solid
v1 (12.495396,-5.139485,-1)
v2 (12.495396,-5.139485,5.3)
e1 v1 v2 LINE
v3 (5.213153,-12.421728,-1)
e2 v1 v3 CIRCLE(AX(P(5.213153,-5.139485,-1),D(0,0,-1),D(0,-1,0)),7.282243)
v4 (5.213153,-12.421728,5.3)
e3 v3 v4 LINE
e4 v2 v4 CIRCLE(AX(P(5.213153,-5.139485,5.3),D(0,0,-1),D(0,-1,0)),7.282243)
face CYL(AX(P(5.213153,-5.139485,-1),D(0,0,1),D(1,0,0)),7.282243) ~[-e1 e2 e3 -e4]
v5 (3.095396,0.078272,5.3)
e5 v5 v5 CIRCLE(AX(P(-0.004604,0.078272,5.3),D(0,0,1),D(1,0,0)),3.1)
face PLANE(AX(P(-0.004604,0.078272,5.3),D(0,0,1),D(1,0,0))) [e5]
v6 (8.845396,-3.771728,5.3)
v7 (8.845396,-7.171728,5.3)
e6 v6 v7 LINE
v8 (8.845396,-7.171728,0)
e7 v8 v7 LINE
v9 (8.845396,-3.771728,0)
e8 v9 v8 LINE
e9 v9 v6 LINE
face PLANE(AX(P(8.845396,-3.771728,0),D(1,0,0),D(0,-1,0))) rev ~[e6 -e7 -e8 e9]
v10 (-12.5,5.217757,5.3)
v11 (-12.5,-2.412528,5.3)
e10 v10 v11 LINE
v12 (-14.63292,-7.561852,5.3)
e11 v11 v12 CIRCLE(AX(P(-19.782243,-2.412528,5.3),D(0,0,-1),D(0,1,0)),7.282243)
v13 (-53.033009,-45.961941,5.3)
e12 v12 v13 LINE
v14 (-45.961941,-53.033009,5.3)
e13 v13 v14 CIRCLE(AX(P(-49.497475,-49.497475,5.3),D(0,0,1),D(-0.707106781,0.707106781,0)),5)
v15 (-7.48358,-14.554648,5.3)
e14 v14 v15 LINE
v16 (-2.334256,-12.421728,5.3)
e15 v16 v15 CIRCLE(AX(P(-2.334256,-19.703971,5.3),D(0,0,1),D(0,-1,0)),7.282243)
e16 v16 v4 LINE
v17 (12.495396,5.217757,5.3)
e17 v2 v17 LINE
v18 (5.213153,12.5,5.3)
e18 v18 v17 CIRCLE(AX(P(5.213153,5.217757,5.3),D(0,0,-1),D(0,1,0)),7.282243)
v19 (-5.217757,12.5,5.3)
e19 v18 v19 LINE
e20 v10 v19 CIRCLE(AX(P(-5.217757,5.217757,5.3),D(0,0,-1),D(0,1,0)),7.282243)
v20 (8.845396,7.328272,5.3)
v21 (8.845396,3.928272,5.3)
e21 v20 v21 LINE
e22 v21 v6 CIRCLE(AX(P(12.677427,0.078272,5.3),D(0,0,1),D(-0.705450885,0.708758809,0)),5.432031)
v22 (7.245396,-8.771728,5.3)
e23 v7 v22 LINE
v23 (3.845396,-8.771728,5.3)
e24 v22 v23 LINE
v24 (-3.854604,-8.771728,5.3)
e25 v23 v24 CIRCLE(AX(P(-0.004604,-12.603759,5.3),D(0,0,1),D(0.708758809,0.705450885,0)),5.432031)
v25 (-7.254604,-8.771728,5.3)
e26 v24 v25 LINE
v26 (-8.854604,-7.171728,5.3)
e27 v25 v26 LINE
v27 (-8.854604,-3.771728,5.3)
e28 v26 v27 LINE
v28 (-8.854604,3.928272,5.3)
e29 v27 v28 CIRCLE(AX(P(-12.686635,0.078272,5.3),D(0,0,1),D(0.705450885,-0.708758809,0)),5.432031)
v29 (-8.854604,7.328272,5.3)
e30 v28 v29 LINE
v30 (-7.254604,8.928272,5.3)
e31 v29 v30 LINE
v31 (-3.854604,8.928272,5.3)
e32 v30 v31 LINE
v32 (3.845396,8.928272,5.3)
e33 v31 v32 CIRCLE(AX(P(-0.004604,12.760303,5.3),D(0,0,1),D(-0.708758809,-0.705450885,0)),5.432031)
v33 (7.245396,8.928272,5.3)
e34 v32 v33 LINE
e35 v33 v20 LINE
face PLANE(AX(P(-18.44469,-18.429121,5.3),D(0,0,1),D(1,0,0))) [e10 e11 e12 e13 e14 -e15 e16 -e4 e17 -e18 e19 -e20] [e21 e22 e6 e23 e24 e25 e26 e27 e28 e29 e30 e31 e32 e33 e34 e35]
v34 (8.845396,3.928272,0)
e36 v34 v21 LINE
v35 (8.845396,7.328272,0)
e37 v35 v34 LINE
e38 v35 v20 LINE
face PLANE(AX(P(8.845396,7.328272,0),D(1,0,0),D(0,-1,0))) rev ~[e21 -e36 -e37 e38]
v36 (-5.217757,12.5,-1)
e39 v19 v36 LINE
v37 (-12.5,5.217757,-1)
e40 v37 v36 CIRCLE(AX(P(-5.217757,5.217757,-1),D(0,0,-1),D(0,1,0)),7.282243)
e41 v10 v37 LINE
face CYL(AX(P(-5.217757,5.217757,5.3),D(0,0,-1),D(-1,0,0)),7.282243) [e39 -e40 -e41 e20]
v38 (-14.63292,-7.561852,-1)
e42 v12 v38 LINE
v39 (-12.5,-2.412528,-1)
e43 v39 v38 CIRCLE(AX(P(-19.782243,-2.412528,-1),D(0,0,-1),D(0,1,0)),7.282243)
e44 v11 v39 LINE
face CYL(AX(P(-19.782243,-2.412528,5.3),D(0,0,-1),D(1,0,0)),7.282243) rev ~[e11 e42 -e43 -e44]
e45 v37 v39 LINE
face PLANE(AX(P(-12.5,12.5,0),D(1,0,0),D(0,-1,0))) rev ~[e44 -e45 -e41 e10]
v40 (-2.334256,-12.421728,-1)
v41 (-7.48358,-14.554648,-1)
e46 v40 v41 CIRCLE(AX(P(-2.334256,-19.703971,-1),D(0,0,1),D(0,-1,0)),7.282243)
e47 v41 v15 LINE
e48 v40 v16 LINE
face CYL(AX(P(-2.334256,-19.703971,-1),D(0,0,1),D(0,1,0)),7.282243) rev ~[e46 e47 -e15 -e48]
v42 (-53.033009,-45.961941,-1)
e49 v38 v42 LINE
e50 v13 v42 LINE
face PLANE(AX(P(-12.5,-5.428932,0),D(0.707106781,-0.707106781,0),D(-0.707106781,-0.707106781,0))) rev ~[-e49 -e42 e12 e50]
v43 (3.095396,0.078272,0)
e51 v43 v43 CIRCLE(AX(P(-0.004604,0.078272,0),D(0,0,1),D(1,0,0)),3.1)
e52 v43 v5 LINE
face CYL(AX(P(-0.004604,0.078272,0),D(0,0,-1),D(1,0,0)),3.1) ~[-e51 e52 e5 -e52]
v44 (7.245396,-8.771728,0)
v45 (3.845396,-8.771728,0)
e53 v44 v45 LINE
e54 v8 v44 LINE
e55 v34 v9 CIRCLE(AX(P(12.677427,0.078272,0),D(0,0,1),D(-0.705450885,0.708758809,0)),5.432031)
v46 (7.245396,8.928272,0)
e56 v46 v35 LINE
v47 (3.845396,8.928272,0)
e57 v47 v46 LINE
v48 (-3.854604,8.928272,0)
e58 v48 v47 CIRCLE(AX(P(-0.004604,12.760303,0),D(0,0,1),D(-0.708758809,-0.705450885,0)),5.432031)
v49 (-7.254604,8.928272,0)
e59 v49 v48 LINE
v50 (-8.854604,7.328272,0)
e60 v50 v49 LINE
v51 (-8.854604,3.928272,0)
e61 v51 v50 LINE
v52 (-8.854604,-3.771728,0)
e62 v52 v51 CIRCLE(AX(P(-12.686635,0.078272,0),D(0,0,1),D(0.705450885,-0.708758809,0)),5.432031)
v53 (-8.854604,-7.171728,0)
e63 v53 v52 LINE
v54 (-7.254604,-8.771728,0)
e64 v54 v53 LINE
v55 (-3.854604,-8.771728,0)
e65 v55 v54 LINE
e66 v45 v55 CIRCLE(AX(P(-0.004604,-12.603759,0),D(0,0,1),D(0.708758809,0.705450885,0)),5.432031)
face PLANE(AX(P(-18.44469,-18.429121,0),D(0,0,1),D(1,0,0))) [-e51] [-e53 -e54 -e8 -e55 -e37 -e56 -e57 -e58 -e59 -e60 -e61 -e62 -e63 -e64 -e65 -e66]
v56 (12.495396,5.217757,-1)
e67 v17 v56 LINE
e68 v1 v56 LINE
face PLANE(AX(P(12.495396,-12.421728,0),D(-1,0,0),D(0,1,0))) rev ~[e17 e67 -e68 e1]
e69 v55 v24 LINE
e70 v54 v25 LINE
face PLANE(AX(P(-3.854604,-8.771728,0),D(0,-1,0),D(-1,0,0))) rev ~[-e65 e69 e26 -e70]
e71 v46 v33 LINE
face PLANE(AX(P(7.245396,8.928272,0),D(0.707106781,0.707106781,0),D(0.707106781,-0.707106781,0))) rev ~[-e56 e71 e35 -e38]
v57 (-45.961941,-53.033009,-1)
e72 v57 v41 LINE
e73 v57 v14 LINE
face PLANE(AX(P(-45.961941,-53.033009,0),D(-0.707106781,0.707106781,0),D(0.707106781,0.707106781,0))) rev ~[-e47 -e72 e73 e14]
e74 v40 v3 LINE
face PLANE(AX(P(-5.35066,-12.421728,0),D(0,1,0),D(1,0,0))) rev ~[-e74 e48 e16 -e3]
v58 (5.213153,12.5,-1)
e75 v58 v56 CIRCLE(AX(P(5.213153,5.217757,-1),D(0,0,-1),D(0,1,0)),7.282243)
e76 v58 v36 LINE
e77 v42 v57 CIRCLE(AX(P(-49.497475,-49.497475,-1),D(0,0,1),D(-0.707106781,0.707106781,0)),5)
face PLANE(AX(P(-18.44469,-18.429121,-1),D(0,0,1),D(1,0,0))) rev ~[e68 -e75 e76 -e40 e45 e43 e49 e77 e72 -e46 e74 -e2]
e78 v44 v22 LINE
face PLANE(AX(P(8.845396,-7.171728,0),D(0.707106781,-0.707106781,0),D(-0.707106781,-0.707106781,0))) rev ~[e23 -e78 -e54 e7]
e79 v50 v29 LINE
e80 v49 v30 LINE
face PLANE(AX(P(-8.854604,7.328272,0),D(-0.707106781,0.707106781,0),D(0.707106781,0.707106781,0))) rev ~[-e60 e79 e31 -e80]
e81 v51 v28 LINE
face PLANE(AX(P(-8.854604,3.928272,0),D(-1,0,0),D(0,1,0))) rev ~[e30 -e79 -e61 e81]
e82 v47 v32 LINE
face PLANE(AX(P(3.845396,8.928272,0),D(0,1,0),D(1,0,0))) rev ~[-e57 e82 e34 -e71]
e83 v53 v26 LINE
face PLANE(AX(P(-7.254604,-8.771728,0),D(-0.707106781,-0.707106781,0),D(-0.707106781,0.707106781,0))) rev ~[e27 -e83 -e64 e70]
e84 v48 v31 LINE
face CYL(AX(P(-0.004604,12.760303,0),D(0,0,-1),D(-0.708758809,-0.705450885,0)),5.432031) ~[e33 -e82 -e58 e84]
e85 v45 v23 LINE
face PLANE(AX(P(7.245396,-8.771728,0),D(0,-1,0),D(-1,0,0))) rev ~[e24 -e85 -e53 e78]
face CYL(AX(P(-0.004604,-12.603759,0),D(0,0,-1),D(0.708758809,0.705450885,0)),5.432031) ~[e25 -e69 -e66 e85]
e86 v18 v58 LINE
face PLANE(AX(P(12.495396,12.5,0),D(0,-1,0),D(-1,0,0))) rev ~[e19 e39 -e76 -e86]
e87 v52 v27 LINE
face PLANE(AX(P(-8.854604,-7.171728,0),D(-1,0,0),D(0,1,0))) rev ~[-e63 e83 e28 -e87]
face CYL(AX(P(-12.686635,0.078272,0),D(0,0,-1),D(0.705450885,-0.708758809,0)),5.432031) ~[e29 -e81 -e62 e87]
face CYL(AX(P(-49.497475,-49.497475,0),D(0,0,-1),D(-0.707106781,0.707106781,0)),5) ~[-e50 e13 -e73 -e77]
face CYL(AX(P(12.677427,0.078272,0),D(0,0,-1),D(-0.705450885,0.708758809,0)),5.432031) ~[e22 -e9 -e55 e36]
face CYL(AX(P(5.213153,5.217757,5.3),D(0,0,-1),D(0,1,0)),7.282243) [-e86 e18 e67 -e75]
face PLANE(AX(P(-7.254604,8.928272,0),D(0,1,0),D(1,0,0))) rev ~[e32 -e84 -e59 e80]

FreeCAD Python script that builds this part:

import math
import FreeCAD as App
import Part
import Sketcher

V = App.Vector
Q = App.Units.Quantity


def edges_at(feature, points):
    """Names of the edges that pass closest to the given points."""
    edges = feature.Shape.Edges
    near = lambda p: min(range(len(edges)), key=lambda i: edges[i].distToShape(Part.Vertex(*p))[0])
    return sorted({f"Edge{near(p) + 1}" for p in points})

doc = App.newDocument("Part")
body = doc.addObject("PartDesign::Body", "Body")

# Sketch on XY plane
sketch1 = body.newObject("Sketcher::SketchObject", "Sketch")
sketch1.AttachmentSupport = (doc.getObject("XY_Plane"), [""])
sketch1.MapMode = "FlatFace"
sketch1.addGeometry([
    Part.ArcOfCircle(Part.Circle(V(-49, -49, 0), V(0, 0, 1), 5), math.radians(135), math.radians(315)),  # 0
    Part.LineSegment(V(-46, -53, 0), V(-5, -12, 0)),  # 1
    Part.LineSegment(V(-5, -12, 0), V(12, -12, 0)),  # 2
    Part.LineSegment(V(12, -12, 0), V(12, 12, 0)),  # 3
    Part.LineSegment(V(12, 12, 0), V(-12, 12, 0)),  # 4
    Part.LineSegment(V(-12, 12, 0), V(-12, -5, 0)),  # 5
    Part.LineSegment(V(-12, -5, 0), V(-53, -46, 0)),  # 6
], False)
sketch1.addConstraint([
    Sketcher.Constraint("Tangent", 0, 2, 1, 1),
    Sketcher.Constraint("Coincident", 1, 2, 2, 1),
    Sketcher.Constraint("Coincident", 2, 2, 3, 1),
    Sketcher.Constraint("Coincident", 3, 2, 4, 1),
    Sketcher.Constraint("Coincident", 4, 2, 5, 1),
    Sketcher.Constraint("Coincident", 5, 2, 6, 1),
    Sketcher.Constraint("Tangent", 6, 2, 0, 1),
    Sketcher.Constraint("Horizontal", 2),
    Sketcher.Constraint("Vertical", 3),
    Sketcher.Constraint("Horizontal", 4),
    Sketcher.Constraint("Vertical", 5),
    Sketcher.Constraint("Parallel", 1, 6),
    Sketcher.Constraint("Radius", 0, Q("5 mm")),
    Sketcher.Constraint("Angle", 1, Q("45 deg")),
    Sketcher.Constraint("DistanceY", -1, 1, 3, 2, Q("12.5 mm")),
    Sketcher.Constraint("DistanceX", 4, 2, -1, 1, Q("12.5 mm")),
    Sketcher.Constraint("DistanceY", 3, 1, 3, 2, Q("24.921728 mm")),
    Sketcher.Constraint("DistanceY", 5, 2, 5, 1, Q("17.928932 mm")),
    Sketcher.Constraint("Distance", 6, Q("57.322331 mm")),
    Sketcher.Constraint("DistanceX", 2, 1, 2, 2, Q("17.846056 mm")),
])
pad1 = body.newObject("PartDesign::Pad", "Pad")
pad1.Profile = sketch1
pad1.Length = 1
pad1.Reversed = True

# Sketch on XY plane
sketch2 = body.newObject("Sketcher::SketchObject", "Sketch001")
sketch2.AttachmentSupport = (doc.getObject("XY_Plane"), [""])
sketch2.MapMode = "FlatFace"
sketch2.addGeometry([
    Part.ArcOfCircle(Part.Circle(V(-49.5, -49.5, 0), V(0, 0, 1), 5), math.radians(135), math.radians(315)),  # 0
    Part.LineSegment(V(-46, -53, 0), V(-5.4, -12.4, 0)),  # 1
    Part.LineSegment(V(-5.4, -12.4, 0), V(12.5, -12.4, 0)),  # 2
    Part.LineSegment(V(12.5, -12.4, 0), V(12.5, 12.5, 0)),  # 3
    Part.LineSegment(V(12.5, 12.5, 0), V(-12.5, 12.5, 0)),  # 4
    Part.LineSegment(V(-12.5, 12.5, 0), V(-12.5, -5.4, 0)),  # 5
    Part.LineSegment(V(-12.5, -5.4, 0), V(-53, -46, 0)),  # 6
    Part.LineSegment(V(-8.9, 3.9, 0), V(-8.9, 7.3, 0)),  # 7
    Part.LineSegment(V(-8.9, 7.3, 0), V(-7.3, 8.9, 0)),  # 8
    Part.LineSegment(V(-7.3, 8.9, 0), V(-3.9, 8.9, 0)),  # 9
    Part.ArcOfCircle(Part.Circle(V(0, 12.8, 0), V(0, 0, 1), 5.4), math.radians(-135), math.radians(-45)),  # 10
    Part.LineSegment(V(3.8, 8.9, 0), V(7.2, 8.9, 0)),  # 11
    Part.LineSegment(V(7.2, 8.9, 0), V(8.8, 7.3, 0)),  # 12
    Part.LineSegment(V(8.8, 7.3, 0), V(8.8, 3.9, 0)),  # 13
    Part.ArcOfCircle(Part.Circle(V(12.7, 0.1, 0), V(0, 0, 1), 5.4), math.radians(135), math.radians(225)),  # 14
    Part.LineSegment(V(8.8, -3.8, 0), V(8.8, -7.2, 0)),  # 15
    Part.LineSegment(V(8.8, -7.2, 0), V(7.2, -8.8, 0)),  # 16
    Part.LineSegment(V(7.2, -8.8, 0), V(3.8, -8.8, 0)),  # 17
    Part.ArcOfCircle(Part.Circle(V(0, -12.6, 0), V(0, 0, 1), 5.4), math.radians(45), math.radians(135)),  # 18
    Part.LineSegment(V(-3.9, -8.8, 0), V(-7.3, -8.8, 0)),  # 19
    Part.LineSegment(V(-7.3, -8.8, 0), V(-8.9, -7.2, 0)),  # 20
    Part.LineSegment(V(-8.9, -7.2, 0), V(-8.9, -3.8, 0)),  # 21
    Part.ArcOfCircle(Part.Circle(V(-12.7, 0.1, 0), V(0, 0, 1), 5.4), math.radians(-45), math.radians(45)),  # 22
    Part.Circle(V(0, 0.1, 0), V(0, 0, 1), 3.1),  # 23
], False)
sketch2.addConstraint([
    Sketcher.Constraint("Tangent", 0, 2, 1, 1),
    Sketcher.Constraint("Coincident", 1, 2, 2, 1),
    Sketcher.Constraint("Coincident", 2, 2, 3, 1),
    Sketcher.Constraint("Coincident", 3, 2, 4, 1),
    Sketcher.Constraint("Coincident", 4, 2, 5, 1),
    Sketcher.Constraint("Coincident", 5, 2, 6, 1),
    Sketcher.Constraint("Tangent", 6, 2, 0, 1),
    Sketcher.Constraint("Coincident", 7, 2, 8, 1),
    Sketcher.Constraint("Coincident", 8, 2, 9, 1),
    Sketcher.Constraint("Coincident", 9, 2, 10, 1),
    Sketcher.Constraint("Coincident", 10, 2, 11, 1),
    Sketcher.Constraint("Coincident", 11, 2, 12, 1),
    Sketcher.Constraint("Coincident", 12, 2, 13, 1),
    Sketcher.Constraint("Coincident", 13, 2, 14, 1),
    Sketcher.Constraint("Coincident", 14, 2, 15, 1),
    Sketcher.Constraint("Coincident", 15, 2, 16, 1),
    Sketcher.Constraint("Coincident", 16, 2, 17, 1),
    Sketcher.Constraint("Coincident", 17, 2, 18, 1),
    Sketcher.Constraint("Coincident", 18, 2, 19, 1),
    Sketcher.Constraint("Coincident", 19, 2, 20, 1),
    Sketcher.Constraint("Coincident", 20, 2, 21, 1),
    Sketcher.Constraint("Coincident", 21, 2, 22, 1),
    Sketcher.Constraint("Coincident", 22, 2, 7, 1),
    Sketcher.Constraint("Horizontal", 2),
    Sketcher.Constraint("Vertical", 3),
    Sketcher.Constraint("Horizontal", 4),
    Sketcher.Constraint("Vertical", 5),
    Sketcher.Constraint("Vertical", 7),
    Sketcher.Constraint("Horizontal", 9),
    Sketcher.Constraint("Horizontal", 11),
    Sketcher.Constraint("Vertical", 13),
    Sketcher.Constraint("Vertical", 15),
    Sketcher.Constraint("Horizontal", 17),
    Sketcher.Constraint("Horizontal", 19),
    Sketcher.Constraint("Vertical", 21),
    Sketcher.Constraint("Equal", 10, 14),
    Sketcher.Constraint("Equal", 14, 18),
    Sketcher.Constraint("Equal", 18, 22),
    Sketcher.Constraint("Parallel", 1, 6),
    Sketcher.Constraint("Parallel", 6, 8),
    Sketcher.Constraint("Perpendicular", 8, 12),
    Sketcher.Constraint("Perpendicular", 12, 16),
    Sketcher.Constraint("Perpendicular", 16, 20),
    Sketcher.Constraint("Horizontal", 14, 3, 22, 3),
    Sketcher.Constraint("Horizontal", 22, 3, 23, 3),
    Sketcher.Constraint("Horizontal", 9, 2, 10, 2),
    Sketcher.Constraint("Horizontal", 7, 2, 12, 2),
    Sketcher.Constraint("Horizontal", 17, 2, 18, 2),
    Sketcher.Constraint("Horizontal", 15, 2, 20, 2),
    Sketcher.Constraint("Horizontal", 14, 2, 21, 2),
    Sketcher.Constraint("Horizontal", 13, 2, 22, 2),
    Sketcher.Constraint("Vertical", 10, 3, 18, 3),
    Sketcher.Constraint("Vertical", 18, 3, 23, 3),
    Sketcher.Constraint("Vertical", 13, 2, 14, 2),
    Sketcher.Constraint("Vertical", 11, 2, 16, 2),
    Sketcher.Constraint("Vertical", 10, 2, 17, 2),
    Sketcher.Constraint("Vertical", 8, 2, 19, 2),
    Sketcher.Constraint("Equal", 9, 11),
    Sketcher.Constraint("Equal", 19, 7),
    Sketcher.Constraint("Equal", 13, 15),
    Sketcher.Constraint("Radius", 0, Q("5 mm")),
    Sketcher.Constraint("Diameter", 23, Q("6.2 mm")),
    Sketcher.Constraint("DistanceX", 9, 1, 9, 2, Q("3.4 mm")),
    Sketcher.Constraint("DistanceX", 7, 2, 9, 2, Q("5 mm")),
    Sketcher.Constraint("DistanceY", -1, 1, 3, 2, Q("12.5 mm")),
    Sketcher.Constraint("DistanceX", 4, 2, -1, 1, Q("12.5 mm")),
    Sketcher.Constraint("DistanceY", 1, 2, 23, 3, Q("12.5 mm")),
    Sketcher.Constraint("DistanceX", 18, 3, 2, 2, Q("12.5 mm")),
    Sketcher.Constraint("DistanceX", 9, 2, 10, 2, Q("7.7 mm")),
    Sketcher.Constraint("DistanceY", 14, 2, 13, 2, Q("7.7 mm")),
    Sketcher.Constraint("Radius", 10, Q("5.432031 mm")),
    Sketcher.Constraint("DistanceY", 3, 1, 3, 2, Q("24.921728 mm")),
    Sketcher.Constraint("DistanceY", 5, 2, 5, 1, Q("17.928932 mm")),
    Sketcher.Constraint("Distance", 6, Q("57.322331 mm")),
    Sketcher.Constraint("DistanceX", 2, 1, 2, 2, Q("17.846056 mm")),
])
pad2 = body.newObject("PartDesign::Pad", "Pad001")
pad2.Profile = sketch2
pad2.Length = 5.3
doc.recompute()

fillet = body.newObject("PartDesign::Fillet", "Fillet")
fillet.Base = (pad2, edges_at(pad2, [
    (-12.5, -5.429, 2.15),
    (-12.5, 12.5, 2.15),
    (12.495, 12.5, 2.15),
    (12.495, -12.422, 2.15),
    (-5.351, -12.422, 2.15),
]))
fillet.Radius = 7.282243

doc.recompute()
